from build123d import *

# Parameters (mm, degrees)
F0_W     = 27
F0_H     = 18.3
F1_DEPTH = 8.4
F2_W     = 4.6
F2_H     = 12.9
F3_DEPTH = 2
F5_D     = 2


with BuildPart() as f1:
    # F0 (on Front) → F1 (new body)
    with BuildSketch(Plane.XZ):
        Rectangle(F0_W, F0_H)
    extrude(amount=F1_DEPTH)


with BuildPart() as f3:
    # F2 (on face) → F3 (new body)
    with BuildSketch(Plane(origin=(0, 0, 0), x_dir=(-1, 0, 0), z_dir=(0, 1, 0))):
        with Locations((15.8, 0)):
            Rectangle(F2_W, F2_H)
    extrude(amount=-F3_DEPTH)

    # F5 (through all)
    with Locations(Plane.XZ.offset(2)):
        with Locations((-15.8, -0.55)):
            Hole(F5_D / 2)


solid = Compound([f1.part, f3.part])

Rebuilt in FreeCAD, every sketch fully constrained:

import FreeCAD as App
import Part
import Sketcher

V = App.Vector
Q = App.Units.Quantity

doc = App.newDocument("Part")
body = doc.addObject("PartDesign::Body", "Body")

sketch1 = body.newObject("Sketcher::SketchObject", "Sketch")
sketch1.AttachmentSupport = (doc.getObject("XZ_Plane"), [""])
sketch1.MapMode = "FlatFace"
sketch1.addGeometry(Part.LineSegment(V(-13.5, 9.15, 0), V(-13.5, -9.15, 0)), False)
sketch1.addGeometry(Part.LineSegment(V(-13.5, -9.15, 0), V(13.5, -9.15, 0)), False)
sketch1.addGeometry(Part.LineSegment(V(13.5, -9.15, 0), V(13.5, 9.15, 0)), False)
sketch1.addGeometry(Part.LineSegment(V(13.5, 9.15, 0), V(-13.5, 9.15, 0)), False)
sketch1.addConstraint(Sketcher.Constraint("Coincident", 0, 2, 1, 1))
sketch1.addConstraint(Sketcher.Constraint("Coincident", 1, 2, 2, 1))
sketch1.addConstraint(Sketcher.Constraint("Coincident", 2, 2, 3, 1))
sketch1.addConstraint(Sketcher.Constraint("Coincident", 3, 2, 0, 1))
sketch1.addConstraint(Sketcher.Constraint("Vertical", 0))
sketch1.addConstraint(Sketcher.Constraint("Horizontal", 1))
sketch1.addConstraint(Sketcher.Constraint("Vertical", 2))
sketch1.addConstraint(Sketcher.Constraint("Horizontal", 3))
sketch1.addConstraint(Sketcher.Constraint("Symmetric", 0, 2, 2, 2, -1, 1))
sketch1.addConstraint(Sketcher.Constraint("DistanceX", 1, 1, 1, 2, Q("27 mm")))
sketch1.addConstraint(Sketcher.Constraint("DistanceY", 0, 2, 0, 1, Q("18.3 mm")))
pad1 = body.newObject("PartDesign::Pad", "Pad")
pad1.Profile = sketch1
pad1.Length = 8.4
body2 = doc.addObject("PartDesign::Body", "Body001")

sketch2 = body2.newObject("Sketcher::SketchObject", "Sketch001")
sketch2.AttachmentSupport = (doc.getObject("XZ_Plane001"), [""])
sketch2.MapMode = "FlatFace"
sketch2.addGeometry(Part.LineSegment(V(-13.5, 6.45, 0), V(-13.5, -6.45, 0)), False)
sketch2.addGeometry(Part.LineSegment(V(-13.5, -6.45, 0), V(-18.1, -6.45, 0)), False)
sketch2.addGeometry(Part.LineSegment(V(-18.1, -6.45, 0), V(-18.1, 6.45, 0)), False)
sketch2.addGeometry(Part.LineSegment(V(-18.1, 6.45, 0), V(-13.5, 6.45, 0)), False)
sketch2.addConstraint(Sketcher.Constraint("Coincident", 0, 2, 1, 1))
sketch2.addConstraint(Sketcher.Constraint("Coincident", 1, 2, 2, 1))
sketch2.addConstraint(Sketcher.Constraint("Coincident", 2, 2, 3, 1))
sketch2.addConstraint(Sketcher.Constraint("Coincident", 3, 2, 0, 1))
sketch2.addConstraint(Sketcher.Constraint("Vertical", 0))
sketch2.addConstraint(Sketcher.Constraint("Horizontal", 1))
sketch2.addConstraint(Sketcher.Constraint("Vertical", 2))
sketch2.addConstraint(Sketcher.Constraint("Horizontal", 3))
sketch2.addConstraint(Sketcher.Constraint("DistanceX", 1, 2, 1, 1, Q("4.6 mm")))
sketch2.addConstraint(Sketcher.Constraint("DistanceY", 0, 2, 0, 1, Q("12.9 mm")))
sketch2.addConstraint(Sketcher.Constraint("DistanceX", 0, 2, -1, 1, Q("13.5 mm")))
sketch2.addConstraint(Sketcher.Constraint("DistanceY", 0, 2, -1, 1, Q("6.45 mm")))
pad2 = body2.newObject("PartDesign::Pad", "Pad001")
pad2.Profile = sketch2
pad2.Length = 2

sketch3 = body2.newObject("Sketcher::SketchObject", "Sketch002")
sketch3.AttachmentSupport = (doc.getObject("XZ_Plane001"), [""])
sketch3.MapMode = "FlatFace"
sketch3.AttachmentOffset = App.Placement(V(0, 0, 2), App.Rotation())
sketch3.addGeometry(Part.Circle(V(-15.8, -0.55, 0), V(0, 0, 1), 1), False)
sketch3.addConstraint(Sketcher.Constraint("Diameter", 0, Q("2 mm")))
sketch3.addConstraint(Sketcher.Constraint("DistanceX", 0, 3, -1, 1, Q("15.8 mm")))
sketch3.addConstraint(Sketcher.Constraint("DistanceY", 0, 3, -1, 1, Q("0.55 mm")))
doc.recompute()
hole = body2.newObject("PartDesign::Hole", "Hole")
hole.Profile = sketch3
hole.ThreadType = "None"
hole.Diameter = 2
hole.DepthType = "ThroughAll"

doc.recompute()
